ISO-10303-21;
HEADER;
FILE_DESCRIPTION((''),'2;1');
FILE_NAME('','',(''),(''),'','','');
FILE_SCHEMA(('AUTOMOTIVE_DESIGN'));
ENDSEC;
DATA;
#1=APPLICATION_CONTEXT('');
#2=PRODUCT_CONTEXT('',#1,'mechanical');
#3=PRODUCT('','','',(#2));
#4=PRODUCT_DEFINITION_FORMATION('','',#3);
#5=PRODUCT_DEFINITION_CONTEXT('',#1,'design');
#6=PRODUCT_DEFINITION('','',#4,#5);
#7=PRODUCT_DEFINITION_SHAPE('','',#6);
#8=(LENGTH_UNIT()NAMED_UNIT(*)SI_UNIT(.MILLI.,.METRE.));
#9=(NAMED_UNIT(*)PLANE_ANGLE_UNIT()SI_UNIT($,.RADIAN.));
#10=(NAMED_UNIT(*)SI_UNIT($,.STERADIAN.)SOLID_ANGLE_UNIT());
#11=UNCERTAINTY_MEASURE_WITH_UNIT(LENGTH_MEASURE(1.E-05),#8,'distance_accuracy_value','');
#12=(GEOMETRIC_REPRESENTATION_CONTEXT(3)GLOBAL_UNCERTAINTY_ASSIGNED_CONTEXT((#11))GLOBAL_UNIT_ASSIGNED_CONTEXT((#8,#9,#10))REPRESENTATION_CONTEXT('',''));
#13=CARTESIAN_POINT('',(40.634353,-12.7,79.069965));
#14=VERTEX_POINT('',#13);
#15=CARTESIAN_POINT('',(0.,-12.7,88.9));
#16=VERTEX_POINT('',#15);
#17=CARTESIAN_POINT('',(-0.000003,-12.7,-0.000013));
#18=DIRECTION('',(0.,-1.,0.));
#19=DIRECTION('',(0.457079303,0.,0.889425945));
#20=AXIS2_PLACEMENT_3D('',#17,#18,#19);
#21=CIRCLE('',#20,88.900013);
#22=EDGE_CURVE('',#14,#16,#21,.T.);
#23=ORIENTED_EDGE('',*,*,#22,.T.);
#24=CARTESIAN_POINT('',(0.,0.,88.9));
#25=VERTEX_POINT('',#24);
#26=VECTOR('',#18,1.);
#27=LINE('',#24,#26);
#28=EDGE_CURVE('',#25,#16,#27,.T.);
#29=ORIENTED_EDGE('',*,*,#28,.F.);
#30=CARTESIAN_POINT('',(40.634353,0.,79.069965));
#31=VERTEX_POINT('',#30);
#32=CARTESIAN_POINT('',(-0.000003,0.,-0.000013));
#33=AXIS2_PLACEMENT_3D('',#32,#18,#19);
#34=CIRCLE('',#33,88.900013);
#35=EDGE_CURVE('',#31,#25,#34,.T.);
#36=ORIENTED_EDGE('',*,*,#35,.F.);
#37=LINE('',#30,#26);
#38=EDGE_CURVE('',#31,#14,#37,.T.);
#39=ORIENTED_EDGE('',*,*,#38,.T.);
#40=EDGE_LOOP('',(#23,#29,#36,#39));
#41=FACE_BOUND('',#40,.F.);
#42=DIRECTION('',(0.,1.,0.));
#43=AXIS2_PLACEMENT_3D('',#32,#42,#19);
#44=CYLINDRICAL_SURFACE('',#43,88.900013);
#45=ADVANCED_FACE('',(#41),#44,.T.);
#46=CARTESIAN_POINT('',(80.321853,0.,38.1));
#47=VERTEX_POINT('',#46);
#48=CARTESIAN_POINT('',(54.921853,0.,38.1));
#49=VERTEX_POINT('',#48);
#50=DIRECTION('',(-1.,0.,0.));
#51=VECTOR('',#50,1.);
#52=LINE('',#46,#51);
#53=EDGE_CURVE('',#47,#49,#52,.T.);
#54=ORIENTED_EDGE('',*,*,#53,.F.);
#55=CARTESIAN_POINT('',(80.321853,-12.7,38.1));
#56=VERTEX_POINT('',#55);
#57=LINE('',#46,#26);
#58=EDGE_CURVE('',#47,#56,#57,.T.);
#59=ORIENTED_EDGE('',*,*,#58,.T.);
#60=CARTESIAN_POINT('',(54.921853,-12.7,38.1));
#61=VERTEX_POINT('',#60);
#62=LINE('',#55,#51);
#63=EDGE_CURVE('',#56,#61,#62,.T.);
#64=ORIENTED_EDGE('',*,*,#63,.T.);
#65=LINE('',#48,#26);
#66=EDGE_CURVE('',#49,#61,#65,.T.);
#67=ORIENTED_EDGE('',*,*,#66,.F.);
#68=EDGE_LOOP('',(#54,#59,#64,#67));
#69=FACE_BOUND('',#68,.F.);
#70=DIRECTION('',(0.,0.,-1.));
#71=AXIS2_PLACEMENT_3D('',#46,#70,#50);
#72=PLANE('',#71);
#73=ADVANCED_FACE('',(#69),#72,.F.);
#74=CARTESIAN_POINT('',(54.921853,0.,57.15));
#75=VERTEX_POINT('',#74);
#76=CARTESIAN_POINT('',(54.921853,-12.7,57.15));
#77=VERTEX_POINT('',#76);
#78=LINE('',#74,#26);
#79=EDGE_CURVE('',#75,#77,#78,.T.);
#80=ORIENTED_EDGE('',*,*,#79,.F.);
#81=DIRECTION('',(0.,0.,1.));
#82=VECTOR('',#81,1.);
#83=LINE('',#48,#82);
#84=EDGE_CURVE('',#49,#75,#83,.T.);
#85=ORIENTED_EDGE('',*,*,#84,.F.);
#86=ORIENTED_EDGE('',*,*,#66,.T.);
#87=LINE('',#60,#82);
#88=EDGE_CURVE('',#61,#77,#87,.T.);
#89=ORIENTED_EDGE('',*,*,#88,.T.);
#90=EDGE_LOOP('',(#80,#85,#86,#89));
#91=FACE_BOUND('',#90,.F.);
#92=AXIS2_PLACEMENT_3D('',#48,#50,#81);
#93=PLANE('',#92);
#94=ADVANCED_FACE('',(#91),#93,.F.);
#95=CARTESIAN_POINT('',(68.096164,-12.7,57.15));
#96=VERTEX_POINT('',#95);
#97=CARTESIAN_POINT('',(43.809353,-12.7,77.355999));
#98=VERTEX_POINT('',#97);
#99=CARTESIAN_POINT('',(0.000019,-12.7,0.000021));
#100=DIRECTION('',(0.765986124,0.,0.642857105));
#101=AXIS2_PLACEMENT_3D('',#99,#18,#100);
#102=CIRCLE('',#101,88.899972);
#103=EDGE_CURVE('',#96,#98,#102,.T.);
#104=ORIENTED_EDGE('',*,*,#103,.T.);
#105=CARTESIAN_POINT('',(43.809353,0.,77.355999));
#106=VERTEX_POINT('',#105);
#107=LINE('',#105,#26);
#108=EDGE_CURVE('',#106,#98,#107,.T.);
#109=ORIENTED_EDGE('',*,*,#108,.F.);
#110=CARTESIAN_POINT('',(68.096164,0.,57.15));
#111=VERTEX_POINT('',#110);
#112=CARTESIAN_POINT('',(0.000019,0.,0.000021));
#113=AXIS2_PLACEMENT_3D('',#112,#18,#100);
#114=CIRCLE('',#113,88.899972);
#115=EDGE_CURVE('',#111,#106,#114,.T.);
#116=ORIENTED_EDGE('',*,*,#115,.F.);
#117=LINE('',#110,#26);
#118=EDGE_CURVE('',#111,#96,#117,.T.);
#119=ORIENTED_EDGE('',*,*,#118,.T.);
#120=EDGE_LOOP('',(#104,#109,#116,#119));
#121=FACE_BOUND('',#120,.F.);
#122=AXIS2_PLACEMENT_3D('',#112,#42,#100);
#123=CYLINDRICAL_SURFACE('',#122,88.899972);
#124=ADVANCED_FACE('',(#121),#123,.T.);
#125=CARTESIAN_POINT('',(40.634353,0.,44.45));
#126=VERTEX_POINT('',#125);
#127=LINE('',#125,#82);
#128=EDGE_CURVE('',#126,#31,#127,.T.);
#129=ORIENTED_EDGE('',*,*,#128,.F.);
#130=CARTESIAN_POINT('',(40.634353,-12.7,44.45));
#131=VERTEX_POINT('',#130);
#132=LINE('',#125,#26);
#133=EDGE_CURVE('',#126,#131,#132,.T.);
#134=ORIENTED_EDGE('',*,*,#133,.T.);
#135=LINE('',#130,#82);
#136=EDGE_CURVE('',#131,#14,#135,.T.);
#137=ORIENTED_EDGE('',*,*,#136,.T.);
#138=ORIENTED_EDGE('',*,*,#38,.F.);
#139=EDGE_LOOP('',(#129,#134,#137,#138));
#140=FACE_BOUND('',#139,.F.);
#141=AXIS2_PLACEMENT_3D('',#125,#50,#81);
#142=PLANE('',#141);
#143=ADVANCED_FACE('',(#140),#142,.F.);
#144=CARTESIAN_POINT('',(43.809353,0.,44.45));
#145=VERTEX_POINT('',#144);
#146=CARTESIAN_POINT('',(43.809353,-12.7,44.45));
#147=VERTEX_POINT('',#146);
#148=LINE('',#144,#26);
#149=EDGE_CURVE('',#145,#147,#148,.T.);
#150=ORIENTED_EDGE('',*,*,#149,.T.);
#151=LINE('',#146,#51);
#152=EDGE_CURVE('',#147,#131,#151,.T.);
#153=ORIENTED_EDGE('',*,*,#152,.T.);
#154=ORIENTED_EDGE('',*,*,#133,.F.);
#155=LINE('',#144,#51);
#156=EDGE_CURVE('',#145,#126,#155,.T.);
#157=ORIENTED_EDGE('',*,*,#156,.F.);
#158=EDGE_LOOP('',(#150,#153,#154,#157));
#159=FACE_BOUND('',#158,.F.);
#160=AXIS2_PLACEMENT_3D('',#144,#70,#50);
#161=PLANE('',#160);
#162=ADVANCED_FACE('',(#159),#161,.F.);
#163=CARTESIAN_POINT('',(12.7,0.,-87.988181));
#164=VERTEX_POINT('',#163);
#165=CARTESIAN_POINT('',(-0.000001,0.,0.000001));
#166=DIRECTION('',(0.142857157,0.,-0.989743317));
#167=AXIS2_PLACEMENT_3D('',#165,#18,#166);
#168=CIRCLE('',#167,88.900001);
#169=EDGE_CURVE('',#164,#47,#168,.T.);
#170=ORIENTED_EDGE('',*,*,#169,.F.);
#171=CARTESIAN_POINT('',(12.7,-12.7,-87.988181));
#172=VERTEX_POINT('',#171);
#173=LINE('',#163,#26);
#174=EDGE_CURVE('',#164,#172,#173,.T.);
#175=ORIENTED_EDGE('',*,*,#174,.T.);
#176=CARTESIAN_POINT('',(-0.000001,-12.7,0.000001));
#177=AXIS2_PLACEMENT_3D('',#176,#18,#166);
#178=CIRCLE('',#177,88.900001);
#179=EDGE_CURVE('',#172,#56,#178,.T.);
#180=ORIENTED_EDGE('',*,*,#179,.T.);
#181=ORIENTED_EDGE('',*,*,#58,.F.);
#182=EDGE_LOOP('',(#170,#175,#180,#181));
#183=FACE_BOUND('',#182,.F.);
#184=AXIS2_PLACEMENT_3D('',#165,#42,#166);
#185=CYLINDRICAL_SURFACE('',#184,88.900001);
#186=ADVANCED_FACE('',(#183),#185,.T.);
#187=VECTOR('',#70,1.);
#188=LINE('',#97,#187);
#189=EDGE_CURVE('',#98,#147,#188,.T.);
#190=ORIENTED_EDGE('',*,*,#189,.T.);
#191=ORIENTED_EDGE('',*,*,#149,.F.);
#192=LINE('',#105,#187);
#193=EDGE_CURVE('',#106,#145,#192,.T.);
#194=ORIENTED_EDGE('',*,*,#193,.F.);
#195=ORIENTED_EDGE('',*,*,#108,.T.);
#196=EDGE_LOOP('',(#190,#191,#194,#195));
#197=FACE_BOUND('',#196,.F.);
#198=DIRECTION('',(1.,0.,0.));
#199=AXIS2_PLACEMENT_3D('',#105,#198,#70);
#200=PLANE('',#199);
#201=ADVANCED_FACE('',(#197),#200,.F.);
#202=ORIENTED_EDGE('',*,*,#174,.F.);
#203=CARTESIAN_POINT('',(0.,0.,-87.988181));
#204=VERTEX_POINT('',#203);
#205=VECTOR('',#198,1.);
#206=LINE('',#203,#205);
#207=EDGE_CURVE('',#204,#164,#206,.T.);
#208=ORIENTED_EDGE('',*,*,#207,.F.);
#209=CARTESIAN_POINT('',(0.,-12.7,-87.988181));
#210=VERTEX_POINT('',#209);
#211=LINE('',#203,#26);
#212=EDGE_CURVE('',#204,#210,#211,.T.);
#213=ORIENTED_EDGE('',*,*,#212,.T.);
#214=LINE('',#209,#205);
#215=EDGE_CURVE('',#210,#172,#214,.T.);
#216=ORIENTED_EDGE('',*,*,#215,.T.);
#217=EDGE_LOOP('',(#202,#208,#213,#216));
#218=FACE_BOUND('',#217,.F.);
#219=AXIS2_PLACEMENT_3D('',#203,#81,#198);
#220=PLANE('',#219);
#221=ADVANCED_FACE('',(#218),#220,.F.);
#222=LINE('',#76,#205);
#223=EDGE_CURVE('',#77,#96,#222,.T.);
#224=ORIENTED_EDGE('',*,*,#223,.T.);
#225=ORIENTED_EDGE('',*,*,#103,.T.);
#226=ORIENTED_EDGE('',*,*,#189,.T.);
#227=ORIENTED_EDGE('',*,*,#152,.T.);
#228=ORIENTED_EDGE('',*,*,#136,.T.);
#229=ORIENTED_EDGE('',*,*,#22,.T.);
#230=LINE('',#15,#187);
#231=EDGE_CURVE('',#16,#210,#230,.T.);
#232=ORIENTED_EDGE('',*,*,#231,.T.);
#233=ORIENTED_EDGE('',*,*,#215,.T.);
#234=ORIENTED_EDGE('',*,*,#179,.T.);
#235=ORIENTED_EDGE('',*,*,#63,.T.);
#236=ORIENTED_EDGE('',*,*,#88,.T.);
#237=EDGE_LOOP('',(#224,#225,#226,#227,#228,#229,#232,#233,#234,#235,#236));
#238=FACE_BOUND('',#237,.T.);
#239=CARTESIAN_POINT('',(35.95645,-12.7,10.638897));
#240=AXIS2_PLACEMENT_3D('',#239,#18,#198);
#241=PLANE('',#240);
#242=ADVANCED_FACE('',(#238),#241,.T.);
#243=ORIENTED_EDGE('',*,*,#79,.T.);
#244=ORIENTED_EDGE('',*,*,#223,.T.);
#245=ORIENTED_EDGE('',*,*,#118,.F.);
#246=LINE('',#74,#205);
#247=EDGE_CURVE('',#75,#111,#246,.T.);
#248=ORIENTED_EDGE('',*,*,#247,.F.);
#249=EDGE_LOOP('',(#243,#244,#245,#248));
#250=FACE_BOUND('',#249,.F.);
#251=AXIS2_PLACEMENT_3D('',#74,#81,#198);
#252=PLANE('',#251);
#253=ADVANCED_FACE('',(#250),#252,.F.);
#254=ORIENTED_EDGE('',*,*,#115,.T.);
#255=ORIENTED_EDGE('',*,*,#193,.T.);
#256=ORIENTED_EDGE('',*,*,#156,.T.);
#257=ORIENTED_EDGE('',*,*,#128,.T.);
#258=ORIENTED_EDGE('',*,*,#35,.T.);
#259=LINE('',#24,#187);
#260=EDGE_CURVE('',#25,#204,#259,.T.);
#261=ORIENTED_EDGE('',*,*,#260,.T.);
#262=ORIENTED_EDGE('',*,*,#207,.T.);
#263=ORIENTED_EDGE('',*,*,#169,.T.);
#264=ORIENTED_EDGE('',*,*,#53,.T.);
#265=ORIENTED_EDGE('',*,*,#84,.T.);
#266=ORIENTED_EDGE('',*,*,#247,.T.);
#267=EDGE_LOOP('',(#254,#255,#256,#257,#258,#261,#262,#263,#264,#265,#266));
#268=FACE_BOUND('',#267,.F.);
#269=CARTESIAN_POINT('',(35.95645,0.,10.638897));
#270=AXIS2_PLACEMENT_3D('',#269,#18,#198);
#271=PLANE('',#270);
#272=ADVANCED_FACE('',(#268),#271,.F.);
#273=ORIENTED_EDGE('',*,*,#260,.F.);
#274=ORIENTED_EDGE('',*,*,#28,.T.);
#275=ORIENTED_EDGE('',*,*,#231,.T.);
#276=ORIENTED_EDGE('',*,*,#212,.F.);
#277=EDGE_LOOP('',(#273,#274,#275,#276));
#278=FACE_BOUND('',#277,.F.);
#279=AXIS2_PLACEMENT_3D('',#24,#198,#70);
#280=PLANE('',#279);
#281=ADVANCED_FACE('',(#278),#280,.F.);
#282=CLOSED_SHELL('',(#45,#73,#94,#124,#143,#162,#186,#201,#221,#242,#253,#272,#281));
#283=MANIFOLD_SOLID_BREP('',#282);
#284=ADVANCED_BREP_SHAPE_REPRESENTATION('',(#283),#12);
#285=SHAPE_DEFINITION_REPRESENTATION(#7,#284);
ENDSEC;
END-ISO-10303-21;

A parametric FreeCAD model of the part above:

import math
import FreeCAD as App
import Part
import Sketcher

V = App.Vector
Q = App.Units.Quantity

doc = App.newDocument("Part")
body = doc.addObject("PartDesign::Body", "Body")

# Sketch on XZ plane
sketch1 = body.newObject("Sketcher::SketchObject", "Sketch")
sketch1.AttachmentSupport = (doc.getObject("XZ_Plane"), [""])
sketch1.MapMode = "FlatFace"
sketch1.addGeometry([
    Part.ArcOfCircle(Part.Circle(V(0, 0, 0), V(0, 0, 1), 88.9), math.radians(63), math.radians(90)),  # 0
    Part.LineSegment(V(0, 88.9, 0), V(0, -88, 0)),  # 1
    Part.LineSegment(V(0, -88, 0), V(12.7, -88, 0)),  # 2
    Part.ArcOfCircle(Part.Circle(V(0, 0, 0), V(0, 0, 1), 88.9), math.radians(-82), math.radians(25)),  # 3
    Part.LineSegment(V(80.3, 38.1, 0), V(54.9, 38.1, 0)),  # 4
    Part.LineSegment(V(54.9, 38.1, 0), V(54.9, 57.1, 0)),  # 5
    Part.LineSegment(V(54.9, 57.1, 0), V(68.1, 57.1, 0)),  # 6
    Part.ArcOfCircle(Part.Circle(V(0, 0, 0), V(0, 0, 1), 88.9), math.radians(40), math.radians(60)),  # 7
    Part.LineSegment(V(43.8, 77.4, 0), V(43.8, 44.5, 0)),  # 8
    Part.LineSegment(V(43.8, 44.5, 0), V(40.6, 44.5, 0)),  # 9
    Part.LineSegment(V(40.6, 44.5, 0), V(40.6, 79.1, 0)),  # 10
], False)
sketch1.addConstraint([
    Sketcher.Constraint("Coincident", 0, 2, 1, 1),
    Sketcher.Constraint("Coincident", 1, 2, 2, 1),
    Sketcher.Constraint("Coincident", 2, 2, 3, 1),
    Sketcher.Constraint("Coincident", 3, 2, 4, 1),
    Sketcher.Constraint("Coincident", 4, 2, 5, 1),
    Sketcher.Constraint("Coincident", 5, 2, 6, 1),
    Sketcher.Constraint("Coincident", 6, 2, 7, 1),
    Sketcher.Constraint("Coincident", 7, 2, 8, 1),
    Sketcher.Constraint("Coincident", 8, 2, 9, 1),
    Sketcher.Constraint("Coincident", 9, 2, 10, 1),
    Sketcher.Constraint("Coincident", 10, 2, 0, 1),
    Sketcher.Constraint("Vertical", 1),
    Sketcher.Constraint("Horizontal", 2),
    Sketcher.Constraint("Horizontal", 4),
    Sketcher.Constraint("Vertical", 5),
    Sketcher.Constraint("Horizontal", 6),
    Sketcher.Constraint("Vertical", 8),
    Sketcher.Constraint("Horizontal", 9),
    Sketcher.Constraint("Vertical", 10),
    Sketcher.Constraint("Coincident", 3, 3, -1, 1),
    Sketcher.Constraint("PointOnObject", 0, 2, -2),
    Sketcher.Constraint("Vertical", 0, 3, 3, 3),
    Sketcher.Constraint("Radius", 3, Q("3.5 in")),
    Sketcher.Constraint("DistanceX", 4, 2, 4, 1, Q("1 in")),
    Sketcher.Constraint("DistanceX", 2, 1, 2, 2, Q("0.5 in")),
    Sketcher.Constraint("DistanceY", 3, 2, 0, 2, Q("2 in")),
    Sketcher.Constraint("DistanceY", 5, 1, 5, 2, Q("0.75 in")),
    Sketcher.Constraint("DistanceY", -1, 1, 0, 2, Q("3.5 in")),
    Sketcher.Constraint("DistanceY", 8, 2, 5, 2, Q("0.5 in")),
    Sketcher.Constraint("DistanceX", 9, 2, 9, 1, Q("0.125 in")),
    Sketcher.Constraint("DistanceX", 7, 2, 5, 2, Q("0.4375 in")),
    Sketcher.Constraint("DistanceY", 8, 2, 8, 1, Q("32.905999 mm")),
    Sketcher.Constraint("Radius", 0, Q("88.900013 mm")),
    Sketcher.Constraint("Radius", 7, Q("88.899972 mm")),
    Sketcher.Constraint("DistanceX", 6, 1, 6, 2, Q("13.174311 mm")),
])
pad1 = body.newObject("PartDesign::Pad", "Pad")
pad1.Profile = sketch1
pad1.Length = Q("0.5 in")

doc.recompute()
